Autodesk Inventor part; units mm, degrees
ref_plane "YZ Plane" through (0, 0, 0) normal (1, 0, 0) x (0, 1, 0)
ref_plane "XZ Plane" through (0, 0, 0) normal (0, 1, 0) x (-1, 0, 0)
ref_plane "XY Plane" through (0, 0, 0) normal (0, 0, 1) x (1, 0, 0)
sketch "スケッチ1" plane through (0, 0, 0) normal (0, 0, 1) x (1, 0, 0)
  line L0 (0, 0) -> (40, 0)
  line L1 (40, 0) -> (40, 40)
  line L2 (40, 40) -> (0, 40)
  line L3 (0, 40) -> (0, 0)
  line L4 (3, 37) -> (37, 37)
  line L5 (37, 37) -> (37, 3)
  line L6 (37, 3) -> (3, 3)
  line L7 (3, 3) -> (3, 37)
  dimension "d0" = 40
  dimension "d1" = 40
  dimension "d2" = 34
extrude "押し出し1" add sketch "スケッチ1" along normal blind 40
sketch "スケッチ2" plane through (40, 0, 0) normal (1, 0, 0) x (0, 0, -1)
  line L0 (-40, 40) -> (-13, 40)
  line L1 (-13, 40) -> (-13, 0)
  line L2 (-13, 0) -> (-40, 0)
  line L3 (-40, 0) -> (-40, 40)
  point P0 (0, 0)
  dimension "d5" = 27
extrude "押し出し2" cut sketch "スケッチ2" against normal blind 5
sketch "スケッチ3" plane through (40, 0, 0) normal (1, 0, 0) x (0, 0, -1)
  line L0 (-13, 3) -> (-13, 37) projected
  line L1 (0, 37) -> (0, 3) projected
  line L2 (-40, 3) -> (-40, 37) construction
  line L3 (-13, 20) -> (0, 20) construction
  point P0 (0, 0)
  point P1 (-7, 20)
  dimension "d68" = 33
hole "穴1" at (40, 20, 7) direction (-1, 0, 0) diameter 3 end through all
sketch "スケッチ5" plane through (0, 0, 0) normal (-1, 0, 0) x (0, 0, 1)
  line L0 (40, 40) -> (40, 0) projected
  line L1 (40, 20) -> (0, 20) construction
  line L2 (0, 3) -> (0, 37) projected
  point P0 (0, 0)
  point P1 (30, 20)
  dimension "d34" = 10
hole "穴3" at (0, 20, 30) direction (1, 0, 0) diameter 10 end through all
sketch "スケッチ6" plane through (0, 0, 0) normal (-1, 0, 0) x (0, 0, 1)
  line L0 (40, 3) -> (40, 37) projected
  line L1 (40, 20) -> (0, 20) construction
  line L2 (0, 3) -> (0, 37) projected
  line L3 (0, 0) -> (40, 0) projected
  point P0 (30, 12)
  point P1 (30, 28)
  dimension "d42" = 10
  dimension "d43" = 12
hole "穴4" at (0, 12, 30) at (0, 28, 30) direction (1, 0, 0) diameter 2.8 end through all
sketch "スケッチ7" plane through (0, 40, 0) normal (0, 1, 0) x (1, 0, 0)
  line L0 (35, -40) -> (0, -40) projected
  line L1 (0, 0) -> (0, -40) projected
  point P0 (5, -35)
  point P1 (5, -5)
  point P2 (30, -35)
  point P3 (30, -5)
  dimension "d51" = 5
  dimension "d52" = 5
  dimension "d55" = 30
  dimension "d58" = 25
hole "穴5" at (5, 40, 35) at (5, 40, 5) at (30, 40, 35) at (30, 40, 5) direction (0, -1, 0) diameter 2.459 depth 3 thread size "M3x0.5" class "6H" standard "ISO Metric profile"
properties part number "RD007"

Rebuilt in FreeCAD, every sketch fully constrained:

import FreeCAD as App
import Part
import Sketcher


def add_polygon(sketch, points):
    """Adds a closed chain of lines whose ends are joined by coincident constraints."""
    first, n = sketch.GeometryCount, len(points)
    for a, b in zip(points, points[1:] + points[:1]):
        sketch.addGeometry(Part.LineSegment(App.Vector(*a, 0), App.Vector(*b, 0)), False)
    for i in range(n):
        sketch.addConstraint(Sketcher.Constraint("Coincident", first + i, 2, first + (i + 1) % n, 1))

doc = App.newDocument("Part")
params = doc.addObject("Spreadsheet::Sheet", "Params")
for row, (alias, value) in enumerate([
    ("sketch1_width", "40 mm"),
    ("sketch1_width2", "34 mm"),
    ("pad1_length", "40 mm"),
    ("sketch2_height", "27 mm"),
    ("sketch2_width", "40 mm"),
    ("pocket1_length", "5 mm"),
    ("sketch3_diameter", "3 mm"),
    ("hole_diameter", "3 mm"),
    ("sketch4_diameter", "10 mm"),
    ("hole2_diameter", "10 mm"),
    ("sketch5_diameter", "2.8 mm"),
    ("hole3_diameter", "2.8 mm"),
    ("hole4_diameter", "2.459 mm"),
    ("hole4_depth", "3 mm"),
], start=1):
    params.set(f"A{row}", alias)
    params.set(f"B{row}", "=" + value)
    params.setAlias(f"B{row}", alias)

body = doc.addObject("PartDesign::Body", "Body")

sketch1 = body.newObject("Sketcher::SketchObject", "Sketch")
sketch1.AttachmentSupport = (doc.getObject("XY_Plane"), [""])
sketch1.MapMode = "FlatFace"
add_polygon(sketch1, [(0, 40), (0, 0), (40, 0), (40, 40)])
add_polygon(sketch1, [(3, 3), (3, 37), (37, 37), (37, 3)])
sketch1.addConstraint([
    Sketcher.Constraint("Vertical", 0),
    Sketcher.Constraint("Horizontal", 1),
    Sketcher.Constraint("Vertical", 2),
    Sketcher.Constraint("Horizontal", 3),
    Sketcher.Constraint("Vertical", 4),
    Sketcher.Constraint("Horizontal", 5),
    Sketcher.Constraint("Vertical", 6),
    Sketcher.Constraint("Horizontal", 7),
    Sketcher.Constraint("Coincident", 0, 2, -1, 1),
    Sketcher.Constraint("Equal", 3, 0),
    Sketcher.Constraint("Equal", 7, 4),
    Sketcher.Constraint("DistanceX", 1, 1, 1, 2, 40.0),
    Sketcher.Constraint("DistanceX", 5, 1, 5, 2, 34.0),
    Sketcher.Constraint("DistanceX", -1, 1, 4, 2, 3.0),
    Sketcher.Constraint("DistanceY", -1, 1, 4, 2, 37.0),
])
sketch1.setExpression("Constraints[19]", "Params.sketch1_width")
sketch1.setExpression("Constraints[20]", "Params.sketch1_width2")
pad1 = body.newObject("PartDesign::Pad", "Pad")
pad1.Profile = sketch1
pad1.setExpression("Length", "Params.pad1_length")

sketch2 = body.newObject("Sketcher::SketchObject", "Sketch001")
sketch2.AttachmentSupport = (doc.getObject("YZ_Plane"), [""])
sketch2.MapMode = "FlatFace"
sketch2.AttachmentOffset = App.Placement(App.Vector(0, 0, 40), App.Rotation())
add_polygon(sketch2, [(40, 13), (40, 40), (0, 40), (0, 13)])
sketch2.addConstraint([
    Sketcher.Constraint("Vertical", 0),
    Sketcher.Constraint("Horizontal", 1),
    Sketcher.Constraint("Vertical", 2),
    Sketcher.Constraint("Horizontal", 3),
    Sketcher.Constraint("PointOnObject", 1, 2, -2),
    Sketcher.Constraint("DistanceY", 0, 1, 0, 2, 27.0),
    Sketcher.Constraint("DistanceX", 1, 2, 1, 1, 40.0),
    Sketcher.Constraint("DistanceY", -1, 1, 0, 2, 40.0),
])
sketch2.setExpression("Constraints[9]", "Params.sketch2_height")
sketch2.setExpression("Constraints[10]", "Params.sketch2_width")
pocket1 = body.newObject("PartDesign::Pocket", "Pocket")
pocket1.Profile = sketch2
pocket1.setExpression("Length", "Params.pocket1_length")

sketch3 = body.newObject("Sketcher::SketchObject", "Sketch002")
sketch3.AttachmentSupport = (doc.getObject("YZ_Plane"), [""])
sketch3.MapMode = "FlatFace"
sketch3.AttachmentOffset = App.Placement(App.Vector(0, 0, 40), App.Rotation())
sketch3.addGeometry(Part.Circle(App.Vector(20, 7, 0), App.Vector(0, 0, 1), 1.5), False)
sketch3.addConstraint([
    Sketcher.Constraint("Diameter", 0, 3.0),
    Sketcher.Constraint("DistanceX", -1, 1, 0, 3, 20.0),
    Sketcher.Constraint("DistanceY", -1, 1, 0, 3, 7.0),
])
sketch3.setExpression("Constraints[0]", "Params.sketch3_diameter")
doc.recompute()
hole = body.newObject("PartDesign::Hole", "Hole")
hole.Profile = sketch3
hole.ThreadType = "None"
hole.setExpression("Diameter", "Params.hole_diameter")
hole.DepthType = "ThroughAll"

sketch4 = body.newObject("Sketcher::SketchObject", "Sketch003")
sketch4.AttachmentSupport = (doc.getObject("YZ_Plane"), [""])
sketch4.MapMode = "FlatFace"
sketch4.addGeometry(Part.Circle(App.Vector(20, 30, 0), App.Vector(0, 0, 1), 5), False)
sketch4.addConstraint([
    Sketcher.Constraint("Diameter", 0, 10.0),
    Sketcher.Constraint("DistanceX", -1, 1, 0, 3, 20.0),
    Sketcher.Constraint("DistanceY", -1, 1, 0, 3, 30.0),
])
sketch4.setExpression("Constraints[0]", "Params.sketch4_diameter")
doc.recompute()
hole2 = body.newObject("PartDesign::Hole", "Hole001")
hole2.Profile = sketch4
hole2.ThreadType = "None"
hole2.setExpression("Diameter", "Params.hole2_diameter")
hole2.DepthType = "ThroughAll"
hole2.Reversed = True

sketch5 = body.newObject("Sketcher::SketchObject", "Sketch004")
sketch5.AttachmentSupport = (doc.getObject("YZ_Plane"), [""])
sketch5.MapMode = "FlatFace"
sketch5.addGeometry([
    Part.Circle(App.Vector(12, 30, 0), App.Vector(0, 0, 1), 1.4),
    Part.Circle(App.Vector(28, 30, 0), App.Vector(0, 0, 1), 1.4),
], False)
sketch5.addConstraint([
    Sketcher.Constraint("Equal", 0, 1),
    Sketcher.Constraint("Horizontal", 0, 3, 1, 3),
    Sketcher.Constraint("Diameter", 0, 2.8),
    Sketcher.Constraint("DistanceX", -1, 1, 0, 3, 12.0),
    Sketcher.Constraint("DistanceY", -1, 1, 0, 3, 30.0),
    Sketcher.Constraint("DistanceX", -1, 1, 1, 3, 28.0),
])
sketch5.setExpression("Constraints[2]", "Params.sketch5_diameter")
doc.recompute()
hole3 = body.newObject("PartDesign::Hole", "Hole002")
hole3.Profile = sketch5
hole3.ThreadType = "None"
hole3.setExpression("Diameter", "Params.hole3_diameter")
hole3.DepthType = "ThroughAll"
hole3.Reversed = True

sketch6 = body.newObject("Sketcher::SketchObject", "Sketch005")
sketch6.AttachmentSupport = (doc.getObject("XZ_Plane"), [""])
sketch6.MapMode = "FlatFace"
sketch6.AttachmentOffset = App.Placement(App.Vector(0, 0, -40), App.Rotation())
sketch6.addGeometry([
    Part.Circle(App.Vector(5, 35, 0), App.Vector(0, 0, 1), 1.2),
    Part.Circle(App.Vector(5, 5, 0), App.Vector(0, 0, 1), 1.2),
    Part.Circle(App.Vector(30, 35, 0), App.Vector(0, 0, 1), 1.2),
    Part.Circle(App.Vector(30, 5, 0), App.Vector(0, 0, 1), 1.2),
], False)
sketch6.addConstraint([
    Sketcher.Constraint("Equal", 0, 1),
    Sketcher.Constraint("Equal", 1, 2),
    Sketcher.Constraint("Equal", 2, 3),
    Sketcher.Constraint("Horizontal", 0, 3, 2, 3),
    Sketcher.Constraint("Horizontal", 1, 3, 3, 3),
    Sketcher.Constraint("Vertical", 0, 3, 1, 3),
    Sketcher.Constraint("Vertical", 2, 3, 3, 3),
    Sketcher.Constraint("Diameter", 0, 2.459),
    Sketcher.Constraint("DistanceX", -1, 1, 0, 3, 5.0),
    Sketcher.Constraint("DistanceY", -1, 1, 0, 3, 35.0),
    Sketcher.Constraint("DistanceY", -1, 1, 1, 3, 5.0),
    Sketcher.Constraint("DistanceX", -1, 1, 2, 3, 30.0),
])
doc.recompute()
hole4 = body.newObject("PartDesign::Hole", "Hole003")
hole4.Profile = sketch6
hole4.ThreadType = "None"
hole4.setExpression("Diameter", "Params.hole4_diameter")
hole4.DepthType = "Dimension"
hole4.setExpression("Depth", "Params.hole4_depth")
hole4.DrillPoint = "Flat"
hole4.Reversed = True

doc.recompute()
